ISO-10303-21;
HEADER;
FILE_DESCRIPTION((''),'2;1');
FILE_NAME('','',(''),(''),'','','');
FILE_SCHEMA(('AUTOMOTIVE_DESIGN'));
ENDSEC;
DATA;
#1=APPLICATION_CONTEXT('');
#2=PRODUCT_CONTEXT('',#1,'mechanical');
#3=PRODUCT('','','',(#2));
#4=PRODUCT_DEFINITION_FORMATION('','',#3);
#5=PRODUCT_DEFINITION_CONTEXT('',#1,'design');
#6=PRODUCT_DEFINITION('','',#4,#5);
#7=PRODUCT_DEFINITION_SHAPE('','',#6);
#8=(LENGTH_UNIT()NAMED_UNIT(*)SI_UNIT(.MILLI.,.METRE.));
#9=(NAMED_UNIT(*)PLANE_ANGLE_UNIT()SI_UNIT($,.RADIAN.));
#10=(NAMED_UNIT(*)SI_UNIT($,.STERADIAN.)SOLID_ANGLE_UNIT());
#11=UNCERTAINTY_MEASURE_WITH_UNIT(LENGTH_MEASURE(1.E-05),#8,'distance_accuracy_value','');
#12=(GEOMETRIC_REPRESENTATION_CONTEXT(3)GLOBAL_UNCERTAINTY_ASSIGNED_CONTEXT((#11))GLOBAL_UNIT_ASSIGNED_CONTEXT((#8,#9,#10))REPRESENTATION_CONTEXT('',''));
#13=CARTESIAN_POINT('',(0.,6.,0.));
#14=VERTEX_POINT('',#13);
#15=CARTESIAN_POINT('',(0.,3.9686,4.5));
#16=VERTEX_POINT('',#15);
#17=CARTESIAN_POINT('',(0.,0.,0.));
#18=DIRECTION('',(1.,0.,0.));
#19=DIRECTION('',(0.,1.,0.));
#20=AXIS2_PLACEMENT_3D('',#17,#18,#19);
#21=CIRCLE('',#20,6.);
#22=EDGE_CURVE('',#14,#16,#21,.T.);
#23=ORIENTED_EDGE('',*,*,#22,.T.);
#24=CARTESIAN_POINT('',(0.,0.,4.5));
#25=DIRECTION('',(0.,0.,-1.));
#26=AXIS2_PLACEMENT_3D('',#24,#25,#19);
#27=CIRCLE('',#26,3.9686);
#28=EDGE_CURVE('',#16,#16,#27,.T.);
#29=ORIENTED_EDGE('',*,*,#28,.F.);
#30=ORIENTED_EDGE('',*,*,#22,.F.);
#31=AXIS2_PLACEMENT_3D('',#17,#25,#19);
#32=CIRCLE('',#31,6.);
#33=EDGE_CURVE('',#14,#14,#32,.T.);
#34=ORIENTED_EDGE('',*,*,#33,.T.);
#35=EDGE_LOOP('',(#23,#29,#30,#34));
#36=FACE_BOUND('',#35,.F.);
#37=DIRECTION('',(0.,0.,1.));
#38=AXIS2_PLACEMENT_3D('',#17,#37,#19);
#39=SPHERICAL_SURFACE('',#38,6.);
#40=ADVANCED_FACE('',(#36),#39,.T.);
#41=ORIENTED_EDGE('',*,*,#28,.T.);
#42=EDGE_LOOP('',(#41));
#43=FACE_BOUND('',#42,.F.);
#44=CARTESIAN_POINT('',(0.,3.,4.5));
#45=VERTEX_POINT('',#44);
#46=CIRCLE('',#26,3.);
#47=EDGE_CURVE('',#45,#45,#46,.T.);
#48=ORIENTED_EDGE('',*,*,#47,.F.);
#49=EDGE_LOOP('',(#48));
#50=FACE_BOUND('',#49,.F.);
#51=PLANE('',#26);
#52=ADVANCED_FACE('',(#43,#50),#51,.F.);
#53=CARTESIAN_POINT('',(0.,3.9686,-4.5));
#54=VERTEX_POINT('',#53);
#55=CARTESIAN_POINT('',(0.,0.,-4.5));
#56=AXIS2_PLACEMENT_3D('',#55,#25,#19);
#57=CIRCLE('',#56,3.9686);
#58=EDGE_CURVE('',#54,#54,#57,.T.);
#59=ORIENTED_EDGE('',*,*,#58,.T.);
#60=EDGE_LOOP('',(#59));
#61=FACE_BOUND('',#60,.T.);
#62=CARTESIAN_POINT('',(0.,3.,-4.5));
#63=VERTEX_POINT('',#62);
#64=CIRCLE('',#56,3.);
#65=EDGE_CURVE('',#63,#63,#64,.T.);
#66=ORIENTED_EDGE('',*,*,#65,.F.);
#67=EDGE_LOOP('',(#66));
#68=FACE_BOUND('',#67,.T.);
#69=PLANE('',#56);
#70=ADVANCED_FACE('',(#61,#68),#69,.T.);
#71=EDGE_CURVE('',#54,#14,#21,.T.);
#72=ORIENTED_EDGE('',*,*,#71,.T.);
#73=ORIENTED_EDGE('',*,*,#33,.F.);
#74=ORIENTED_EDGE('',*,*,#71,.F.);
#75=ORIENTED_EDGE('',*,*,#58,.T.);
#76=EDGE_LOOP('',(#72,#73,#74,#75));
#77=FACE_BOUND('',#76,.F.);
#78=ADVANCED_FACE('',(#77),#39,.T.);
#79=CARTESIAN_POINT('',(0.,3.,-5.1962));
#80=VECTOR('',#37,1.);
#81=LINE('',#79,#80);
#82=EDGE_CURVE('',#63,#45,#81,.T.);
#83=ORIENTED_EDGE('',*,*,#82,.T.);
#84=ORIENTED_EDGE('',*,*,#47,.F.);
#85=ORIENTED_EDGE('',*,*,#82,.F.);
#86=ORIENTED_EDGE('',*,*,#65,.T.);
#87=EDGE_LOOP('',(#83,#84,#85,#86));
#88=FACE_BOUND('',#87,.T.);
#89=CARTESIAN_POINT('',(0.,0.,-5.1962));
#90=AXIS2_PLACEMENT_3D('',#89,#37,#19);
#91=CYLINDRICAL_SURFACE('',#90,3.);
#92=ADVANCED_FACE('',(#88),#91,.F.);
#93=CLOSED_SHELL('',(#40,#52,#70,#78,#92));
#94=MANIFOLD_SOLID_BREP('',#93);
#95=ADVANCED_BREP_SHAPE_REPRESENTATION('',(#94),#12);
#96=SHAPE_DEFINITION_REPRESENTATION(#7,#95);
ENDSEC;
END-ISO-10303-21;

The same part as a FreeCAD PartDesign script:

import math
import FreeCAD as App
import Part
import Sketcher
from FreeCAD import Vector

doc = App.newDocument("Part")
body = doc.addObject("PartDesign::Body", "Body")

# Sketch on YZ plane
sketch1 = doc.addObject("Sketcher::SketchObject", "Sketch")
body.addObject(sketch1)
sketch1.AttachmentSupport = (doc.YZ_Plane, [""])
sketch1.MapMode = "FlatFace"
sketch1.addGeometry([
    Part.ArcOfCircle(Part.Circle(Vector(0, 0, 0), Vector(0, 0, 1), 6), math.radians(-49), math.radians(49)),
    Part.LineSegment(Vector(4, 4.5, 0), Vector(3, 4.5, 0)),
    Part.LineSegment(Vector(3, 4.5, 0), Vector(3, -4.5, 0)),
    Part.LineSegment(Vector(3, -4.5, 0), Vector(4, -4.5, 0)),
], False)
sketch1.addConstraint([
    Sketcher.Constraint("Coincident", 0, 2, 1, 1),
    Sketcher.Constraint("Coincident", 1, 2, 2, 1),
    Sketcher.Constraint("Coincident", 2, 2, 3, 1),
    Sketcher.Constraint("Coincident", 3, 2, 0, 1),
    Sketcher.Constraint("Horizontal", 1),
    Sketcher.Constraint("Vertical", 2),
    Sketcher.Constraint("Horizontal", 3),
    Sketcher.Constraint("Coincident", 0, 3, -1, 1),
    Sketcher.Constraint("Vertical", 0, 2, 3, 2),
    Sketcher.Constraint("Radius", 0, 6.0),
    Sketcher.Constraint("DistanceY", 2, 2, 2, 1, 9.0),
    Sketcher.Constraint("DistanceX", -1, 1, 1, 2, 3.0),
])
revolution = doc.addObject("PartDesign::Revolution", "Revolution")
body.addObject(revolution)
revolution.Profile = sketch1
revolution.ReferenceAxis = (sketch1, ["V_Axis"])
revolution.Angle = 360

doc.recompute()
